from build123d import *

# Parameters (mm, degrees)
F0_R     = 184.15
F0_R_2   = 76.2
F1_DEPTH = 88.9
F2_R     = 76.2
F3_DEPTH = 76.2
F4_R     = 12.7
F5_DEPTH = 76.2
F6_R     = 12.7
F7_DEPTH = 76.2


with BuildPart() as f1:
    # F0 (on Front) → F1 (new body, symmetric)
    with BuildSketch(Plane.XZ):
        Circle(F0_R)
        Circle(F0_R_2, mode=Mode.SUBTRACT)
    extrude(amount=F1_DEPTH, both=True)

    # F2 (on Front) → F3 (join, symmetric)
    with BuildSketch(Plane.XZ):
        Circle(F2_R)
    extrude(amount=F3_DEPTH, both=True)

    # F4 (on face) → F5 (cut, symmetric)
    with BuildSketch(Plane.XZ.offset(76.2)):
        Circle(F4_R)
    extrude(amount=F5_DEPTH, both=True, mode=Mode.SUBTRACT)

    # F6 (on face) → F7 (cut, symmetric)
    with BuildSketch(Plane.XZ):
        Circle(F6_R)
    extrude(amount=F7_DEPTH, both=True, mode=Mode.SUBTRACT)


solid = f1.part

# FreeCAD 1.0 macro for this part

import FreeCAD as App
import Part
import Sketcher
from FreeCAD import Vector
Q = App.Units.Quantity

doc = App.newDocument("Part")
params = doc.addObject("Spreadsheet::Sheet", "Params")
for row, (alias, value) in enumerate([
    ("sketch1_diameter", "6 in"),
    ("sketch1_diameter2", "14.5 in"),
    ("pad1_length", "7 in"),
    ("sketch2_diameter", "6 in"),
    ("pad2_length", "6 in"),
    ("sketch3_diameter", "1 in"),
    ("pocket1_length", "6 in"),
    ("sketch4_diameter", "1 in"),
    ("pocket2_length", "6 in"),
], start=1):
    params.set(f"A{row}", alias)
    params.set(f"B{row}", "=" + value)
    params.setAlias(f"B{row}", alias)

body = doc.addObject("PartDesign::Body", "Body")

# Sketch on XZ plane
sketch1 = body.newObject("Sketcher::SketchObject", "Sketch")
sketch1.AttachmentSupport = (doc.getObject("XZ_Plane"), [""])
sketch1.MapMode = "FlatFace"
sketch1.addGeometry([
    Part.Circle(Vector(0, 0, 0), Vector(0, 0, 1), 184),
    Part.Circle(Vector(0, 0, 0), Vector(0, 0, 1), 76),
], False)
sketch1.addConstraint([
    Sketcher.Constraint("Coincident", 0, 3, -1, 1),
    Sketcher.Constraint("Coincident", 1, 3, -1, 1),
    Sketcher.Constraint("Diameter", 1, Q("6 in")),
    Sketcher.Constraint("Diameter", 0, Q("14.5 in")),
])
sketch1.setExpression("Constraints[2]", "Params.sketch1_diameter")
sketch1.setExpression("Constraints[3]", "Params.sketch1_diameter2")
pad1 = body.newObject("PartDesign::Pad", "Pad")
pad1.Profile = sketch1
pad1.setExpression("Length", "Params.pad1_length")
pad1.Midplane = True

# Sketch on XZ plane
sketch2 = body.newObject("Sketcher::SketchObject", "Sketch001")
sketch2.AttachmentSupport = (doc.getObject("XZ_Plane"), [""])
sketch2.MapMode = "FlatFace"
sketch2.addGeometry(Part.Circle(Vector(0, 0, 0), Vector(0, 0, 1), 76), False)
sketch2.addConstraint([
    Sketcher.Constraint("Coincident", 0, 3, -1, 1),
    Sketcher.Constraint("Diameter", 0, Q("6 in")),
])
sketch2.setExpression("Constraints[1]", "Params.sketch2_diameter")
pad2 = body.newObject("PartDesign::Pad", "Pad001")
pad2.Profile = sketch2
pad2.setExpression("Length", "Params.pad2_length")
pad2.Midplane = True

# Sketch on XZ plane
sketch3 = body.newObject("Sketcher::SketchObject", "Sketch002")
sketch3.AttachmentSupport = (doc.getObject("XZ_Plane"), [""])
sketch3.MapMode = "FlatFace"
sketch3.AttachmentOffset = App.Placement(Vector(0, 0, 3 * 25.4), App.Rotation())
sketch3.addGeometry(Part.Circle(Vector(0, 0, 0), Vector(0, 0, 1), 13), False)
sketch3.addConstraint([
    Sketcher.Constraint("Coincident", 0, 3, -1, 1),
    Sketcher.Constraint("Diameter", 0, Q("1 in")),
])
sketch3.setExpression("Constraints[1]", "Params.sketch3_diameter")
pocket1 = body.newObject("PartDesign::Pocket", "Pocket")
pocket1.Profile = sketch3
pocket1.setExpression("Length", "Params.pocket1_length")
pocket1.Midplane = True

# Sketch on XZ plane
sketch4 = body.newObject("Sketcher::SketchObject", "Sketch003")
sketch4.AttachmentSupport = (doc.getObject("XZ_Plane"), [""])
sketch4.MapMode = "FlatFace"
sketch4.addGeometry(Part.Circle(Vector(0, 0, 0), Vector(0, 0, 1), 13), False)
sketch4.addConstraint([
    Sketcher.Constraint("Coincident", 0, 3, -1, 1),
    Sketcher.Constraint("Diameter", 0, Q("1 in")),
])
sketch4.setExpression("Constraints[1]", "Params.sketch4_diameter")
pocket2 = body.newObject("PartDesign::Pocket", "Pocket001")
pocket2.Profile = sketch4
pocket2.setExpression("Length", "Params.pocket2_length")
pocket2.Midplane = True

doc.recompute()
